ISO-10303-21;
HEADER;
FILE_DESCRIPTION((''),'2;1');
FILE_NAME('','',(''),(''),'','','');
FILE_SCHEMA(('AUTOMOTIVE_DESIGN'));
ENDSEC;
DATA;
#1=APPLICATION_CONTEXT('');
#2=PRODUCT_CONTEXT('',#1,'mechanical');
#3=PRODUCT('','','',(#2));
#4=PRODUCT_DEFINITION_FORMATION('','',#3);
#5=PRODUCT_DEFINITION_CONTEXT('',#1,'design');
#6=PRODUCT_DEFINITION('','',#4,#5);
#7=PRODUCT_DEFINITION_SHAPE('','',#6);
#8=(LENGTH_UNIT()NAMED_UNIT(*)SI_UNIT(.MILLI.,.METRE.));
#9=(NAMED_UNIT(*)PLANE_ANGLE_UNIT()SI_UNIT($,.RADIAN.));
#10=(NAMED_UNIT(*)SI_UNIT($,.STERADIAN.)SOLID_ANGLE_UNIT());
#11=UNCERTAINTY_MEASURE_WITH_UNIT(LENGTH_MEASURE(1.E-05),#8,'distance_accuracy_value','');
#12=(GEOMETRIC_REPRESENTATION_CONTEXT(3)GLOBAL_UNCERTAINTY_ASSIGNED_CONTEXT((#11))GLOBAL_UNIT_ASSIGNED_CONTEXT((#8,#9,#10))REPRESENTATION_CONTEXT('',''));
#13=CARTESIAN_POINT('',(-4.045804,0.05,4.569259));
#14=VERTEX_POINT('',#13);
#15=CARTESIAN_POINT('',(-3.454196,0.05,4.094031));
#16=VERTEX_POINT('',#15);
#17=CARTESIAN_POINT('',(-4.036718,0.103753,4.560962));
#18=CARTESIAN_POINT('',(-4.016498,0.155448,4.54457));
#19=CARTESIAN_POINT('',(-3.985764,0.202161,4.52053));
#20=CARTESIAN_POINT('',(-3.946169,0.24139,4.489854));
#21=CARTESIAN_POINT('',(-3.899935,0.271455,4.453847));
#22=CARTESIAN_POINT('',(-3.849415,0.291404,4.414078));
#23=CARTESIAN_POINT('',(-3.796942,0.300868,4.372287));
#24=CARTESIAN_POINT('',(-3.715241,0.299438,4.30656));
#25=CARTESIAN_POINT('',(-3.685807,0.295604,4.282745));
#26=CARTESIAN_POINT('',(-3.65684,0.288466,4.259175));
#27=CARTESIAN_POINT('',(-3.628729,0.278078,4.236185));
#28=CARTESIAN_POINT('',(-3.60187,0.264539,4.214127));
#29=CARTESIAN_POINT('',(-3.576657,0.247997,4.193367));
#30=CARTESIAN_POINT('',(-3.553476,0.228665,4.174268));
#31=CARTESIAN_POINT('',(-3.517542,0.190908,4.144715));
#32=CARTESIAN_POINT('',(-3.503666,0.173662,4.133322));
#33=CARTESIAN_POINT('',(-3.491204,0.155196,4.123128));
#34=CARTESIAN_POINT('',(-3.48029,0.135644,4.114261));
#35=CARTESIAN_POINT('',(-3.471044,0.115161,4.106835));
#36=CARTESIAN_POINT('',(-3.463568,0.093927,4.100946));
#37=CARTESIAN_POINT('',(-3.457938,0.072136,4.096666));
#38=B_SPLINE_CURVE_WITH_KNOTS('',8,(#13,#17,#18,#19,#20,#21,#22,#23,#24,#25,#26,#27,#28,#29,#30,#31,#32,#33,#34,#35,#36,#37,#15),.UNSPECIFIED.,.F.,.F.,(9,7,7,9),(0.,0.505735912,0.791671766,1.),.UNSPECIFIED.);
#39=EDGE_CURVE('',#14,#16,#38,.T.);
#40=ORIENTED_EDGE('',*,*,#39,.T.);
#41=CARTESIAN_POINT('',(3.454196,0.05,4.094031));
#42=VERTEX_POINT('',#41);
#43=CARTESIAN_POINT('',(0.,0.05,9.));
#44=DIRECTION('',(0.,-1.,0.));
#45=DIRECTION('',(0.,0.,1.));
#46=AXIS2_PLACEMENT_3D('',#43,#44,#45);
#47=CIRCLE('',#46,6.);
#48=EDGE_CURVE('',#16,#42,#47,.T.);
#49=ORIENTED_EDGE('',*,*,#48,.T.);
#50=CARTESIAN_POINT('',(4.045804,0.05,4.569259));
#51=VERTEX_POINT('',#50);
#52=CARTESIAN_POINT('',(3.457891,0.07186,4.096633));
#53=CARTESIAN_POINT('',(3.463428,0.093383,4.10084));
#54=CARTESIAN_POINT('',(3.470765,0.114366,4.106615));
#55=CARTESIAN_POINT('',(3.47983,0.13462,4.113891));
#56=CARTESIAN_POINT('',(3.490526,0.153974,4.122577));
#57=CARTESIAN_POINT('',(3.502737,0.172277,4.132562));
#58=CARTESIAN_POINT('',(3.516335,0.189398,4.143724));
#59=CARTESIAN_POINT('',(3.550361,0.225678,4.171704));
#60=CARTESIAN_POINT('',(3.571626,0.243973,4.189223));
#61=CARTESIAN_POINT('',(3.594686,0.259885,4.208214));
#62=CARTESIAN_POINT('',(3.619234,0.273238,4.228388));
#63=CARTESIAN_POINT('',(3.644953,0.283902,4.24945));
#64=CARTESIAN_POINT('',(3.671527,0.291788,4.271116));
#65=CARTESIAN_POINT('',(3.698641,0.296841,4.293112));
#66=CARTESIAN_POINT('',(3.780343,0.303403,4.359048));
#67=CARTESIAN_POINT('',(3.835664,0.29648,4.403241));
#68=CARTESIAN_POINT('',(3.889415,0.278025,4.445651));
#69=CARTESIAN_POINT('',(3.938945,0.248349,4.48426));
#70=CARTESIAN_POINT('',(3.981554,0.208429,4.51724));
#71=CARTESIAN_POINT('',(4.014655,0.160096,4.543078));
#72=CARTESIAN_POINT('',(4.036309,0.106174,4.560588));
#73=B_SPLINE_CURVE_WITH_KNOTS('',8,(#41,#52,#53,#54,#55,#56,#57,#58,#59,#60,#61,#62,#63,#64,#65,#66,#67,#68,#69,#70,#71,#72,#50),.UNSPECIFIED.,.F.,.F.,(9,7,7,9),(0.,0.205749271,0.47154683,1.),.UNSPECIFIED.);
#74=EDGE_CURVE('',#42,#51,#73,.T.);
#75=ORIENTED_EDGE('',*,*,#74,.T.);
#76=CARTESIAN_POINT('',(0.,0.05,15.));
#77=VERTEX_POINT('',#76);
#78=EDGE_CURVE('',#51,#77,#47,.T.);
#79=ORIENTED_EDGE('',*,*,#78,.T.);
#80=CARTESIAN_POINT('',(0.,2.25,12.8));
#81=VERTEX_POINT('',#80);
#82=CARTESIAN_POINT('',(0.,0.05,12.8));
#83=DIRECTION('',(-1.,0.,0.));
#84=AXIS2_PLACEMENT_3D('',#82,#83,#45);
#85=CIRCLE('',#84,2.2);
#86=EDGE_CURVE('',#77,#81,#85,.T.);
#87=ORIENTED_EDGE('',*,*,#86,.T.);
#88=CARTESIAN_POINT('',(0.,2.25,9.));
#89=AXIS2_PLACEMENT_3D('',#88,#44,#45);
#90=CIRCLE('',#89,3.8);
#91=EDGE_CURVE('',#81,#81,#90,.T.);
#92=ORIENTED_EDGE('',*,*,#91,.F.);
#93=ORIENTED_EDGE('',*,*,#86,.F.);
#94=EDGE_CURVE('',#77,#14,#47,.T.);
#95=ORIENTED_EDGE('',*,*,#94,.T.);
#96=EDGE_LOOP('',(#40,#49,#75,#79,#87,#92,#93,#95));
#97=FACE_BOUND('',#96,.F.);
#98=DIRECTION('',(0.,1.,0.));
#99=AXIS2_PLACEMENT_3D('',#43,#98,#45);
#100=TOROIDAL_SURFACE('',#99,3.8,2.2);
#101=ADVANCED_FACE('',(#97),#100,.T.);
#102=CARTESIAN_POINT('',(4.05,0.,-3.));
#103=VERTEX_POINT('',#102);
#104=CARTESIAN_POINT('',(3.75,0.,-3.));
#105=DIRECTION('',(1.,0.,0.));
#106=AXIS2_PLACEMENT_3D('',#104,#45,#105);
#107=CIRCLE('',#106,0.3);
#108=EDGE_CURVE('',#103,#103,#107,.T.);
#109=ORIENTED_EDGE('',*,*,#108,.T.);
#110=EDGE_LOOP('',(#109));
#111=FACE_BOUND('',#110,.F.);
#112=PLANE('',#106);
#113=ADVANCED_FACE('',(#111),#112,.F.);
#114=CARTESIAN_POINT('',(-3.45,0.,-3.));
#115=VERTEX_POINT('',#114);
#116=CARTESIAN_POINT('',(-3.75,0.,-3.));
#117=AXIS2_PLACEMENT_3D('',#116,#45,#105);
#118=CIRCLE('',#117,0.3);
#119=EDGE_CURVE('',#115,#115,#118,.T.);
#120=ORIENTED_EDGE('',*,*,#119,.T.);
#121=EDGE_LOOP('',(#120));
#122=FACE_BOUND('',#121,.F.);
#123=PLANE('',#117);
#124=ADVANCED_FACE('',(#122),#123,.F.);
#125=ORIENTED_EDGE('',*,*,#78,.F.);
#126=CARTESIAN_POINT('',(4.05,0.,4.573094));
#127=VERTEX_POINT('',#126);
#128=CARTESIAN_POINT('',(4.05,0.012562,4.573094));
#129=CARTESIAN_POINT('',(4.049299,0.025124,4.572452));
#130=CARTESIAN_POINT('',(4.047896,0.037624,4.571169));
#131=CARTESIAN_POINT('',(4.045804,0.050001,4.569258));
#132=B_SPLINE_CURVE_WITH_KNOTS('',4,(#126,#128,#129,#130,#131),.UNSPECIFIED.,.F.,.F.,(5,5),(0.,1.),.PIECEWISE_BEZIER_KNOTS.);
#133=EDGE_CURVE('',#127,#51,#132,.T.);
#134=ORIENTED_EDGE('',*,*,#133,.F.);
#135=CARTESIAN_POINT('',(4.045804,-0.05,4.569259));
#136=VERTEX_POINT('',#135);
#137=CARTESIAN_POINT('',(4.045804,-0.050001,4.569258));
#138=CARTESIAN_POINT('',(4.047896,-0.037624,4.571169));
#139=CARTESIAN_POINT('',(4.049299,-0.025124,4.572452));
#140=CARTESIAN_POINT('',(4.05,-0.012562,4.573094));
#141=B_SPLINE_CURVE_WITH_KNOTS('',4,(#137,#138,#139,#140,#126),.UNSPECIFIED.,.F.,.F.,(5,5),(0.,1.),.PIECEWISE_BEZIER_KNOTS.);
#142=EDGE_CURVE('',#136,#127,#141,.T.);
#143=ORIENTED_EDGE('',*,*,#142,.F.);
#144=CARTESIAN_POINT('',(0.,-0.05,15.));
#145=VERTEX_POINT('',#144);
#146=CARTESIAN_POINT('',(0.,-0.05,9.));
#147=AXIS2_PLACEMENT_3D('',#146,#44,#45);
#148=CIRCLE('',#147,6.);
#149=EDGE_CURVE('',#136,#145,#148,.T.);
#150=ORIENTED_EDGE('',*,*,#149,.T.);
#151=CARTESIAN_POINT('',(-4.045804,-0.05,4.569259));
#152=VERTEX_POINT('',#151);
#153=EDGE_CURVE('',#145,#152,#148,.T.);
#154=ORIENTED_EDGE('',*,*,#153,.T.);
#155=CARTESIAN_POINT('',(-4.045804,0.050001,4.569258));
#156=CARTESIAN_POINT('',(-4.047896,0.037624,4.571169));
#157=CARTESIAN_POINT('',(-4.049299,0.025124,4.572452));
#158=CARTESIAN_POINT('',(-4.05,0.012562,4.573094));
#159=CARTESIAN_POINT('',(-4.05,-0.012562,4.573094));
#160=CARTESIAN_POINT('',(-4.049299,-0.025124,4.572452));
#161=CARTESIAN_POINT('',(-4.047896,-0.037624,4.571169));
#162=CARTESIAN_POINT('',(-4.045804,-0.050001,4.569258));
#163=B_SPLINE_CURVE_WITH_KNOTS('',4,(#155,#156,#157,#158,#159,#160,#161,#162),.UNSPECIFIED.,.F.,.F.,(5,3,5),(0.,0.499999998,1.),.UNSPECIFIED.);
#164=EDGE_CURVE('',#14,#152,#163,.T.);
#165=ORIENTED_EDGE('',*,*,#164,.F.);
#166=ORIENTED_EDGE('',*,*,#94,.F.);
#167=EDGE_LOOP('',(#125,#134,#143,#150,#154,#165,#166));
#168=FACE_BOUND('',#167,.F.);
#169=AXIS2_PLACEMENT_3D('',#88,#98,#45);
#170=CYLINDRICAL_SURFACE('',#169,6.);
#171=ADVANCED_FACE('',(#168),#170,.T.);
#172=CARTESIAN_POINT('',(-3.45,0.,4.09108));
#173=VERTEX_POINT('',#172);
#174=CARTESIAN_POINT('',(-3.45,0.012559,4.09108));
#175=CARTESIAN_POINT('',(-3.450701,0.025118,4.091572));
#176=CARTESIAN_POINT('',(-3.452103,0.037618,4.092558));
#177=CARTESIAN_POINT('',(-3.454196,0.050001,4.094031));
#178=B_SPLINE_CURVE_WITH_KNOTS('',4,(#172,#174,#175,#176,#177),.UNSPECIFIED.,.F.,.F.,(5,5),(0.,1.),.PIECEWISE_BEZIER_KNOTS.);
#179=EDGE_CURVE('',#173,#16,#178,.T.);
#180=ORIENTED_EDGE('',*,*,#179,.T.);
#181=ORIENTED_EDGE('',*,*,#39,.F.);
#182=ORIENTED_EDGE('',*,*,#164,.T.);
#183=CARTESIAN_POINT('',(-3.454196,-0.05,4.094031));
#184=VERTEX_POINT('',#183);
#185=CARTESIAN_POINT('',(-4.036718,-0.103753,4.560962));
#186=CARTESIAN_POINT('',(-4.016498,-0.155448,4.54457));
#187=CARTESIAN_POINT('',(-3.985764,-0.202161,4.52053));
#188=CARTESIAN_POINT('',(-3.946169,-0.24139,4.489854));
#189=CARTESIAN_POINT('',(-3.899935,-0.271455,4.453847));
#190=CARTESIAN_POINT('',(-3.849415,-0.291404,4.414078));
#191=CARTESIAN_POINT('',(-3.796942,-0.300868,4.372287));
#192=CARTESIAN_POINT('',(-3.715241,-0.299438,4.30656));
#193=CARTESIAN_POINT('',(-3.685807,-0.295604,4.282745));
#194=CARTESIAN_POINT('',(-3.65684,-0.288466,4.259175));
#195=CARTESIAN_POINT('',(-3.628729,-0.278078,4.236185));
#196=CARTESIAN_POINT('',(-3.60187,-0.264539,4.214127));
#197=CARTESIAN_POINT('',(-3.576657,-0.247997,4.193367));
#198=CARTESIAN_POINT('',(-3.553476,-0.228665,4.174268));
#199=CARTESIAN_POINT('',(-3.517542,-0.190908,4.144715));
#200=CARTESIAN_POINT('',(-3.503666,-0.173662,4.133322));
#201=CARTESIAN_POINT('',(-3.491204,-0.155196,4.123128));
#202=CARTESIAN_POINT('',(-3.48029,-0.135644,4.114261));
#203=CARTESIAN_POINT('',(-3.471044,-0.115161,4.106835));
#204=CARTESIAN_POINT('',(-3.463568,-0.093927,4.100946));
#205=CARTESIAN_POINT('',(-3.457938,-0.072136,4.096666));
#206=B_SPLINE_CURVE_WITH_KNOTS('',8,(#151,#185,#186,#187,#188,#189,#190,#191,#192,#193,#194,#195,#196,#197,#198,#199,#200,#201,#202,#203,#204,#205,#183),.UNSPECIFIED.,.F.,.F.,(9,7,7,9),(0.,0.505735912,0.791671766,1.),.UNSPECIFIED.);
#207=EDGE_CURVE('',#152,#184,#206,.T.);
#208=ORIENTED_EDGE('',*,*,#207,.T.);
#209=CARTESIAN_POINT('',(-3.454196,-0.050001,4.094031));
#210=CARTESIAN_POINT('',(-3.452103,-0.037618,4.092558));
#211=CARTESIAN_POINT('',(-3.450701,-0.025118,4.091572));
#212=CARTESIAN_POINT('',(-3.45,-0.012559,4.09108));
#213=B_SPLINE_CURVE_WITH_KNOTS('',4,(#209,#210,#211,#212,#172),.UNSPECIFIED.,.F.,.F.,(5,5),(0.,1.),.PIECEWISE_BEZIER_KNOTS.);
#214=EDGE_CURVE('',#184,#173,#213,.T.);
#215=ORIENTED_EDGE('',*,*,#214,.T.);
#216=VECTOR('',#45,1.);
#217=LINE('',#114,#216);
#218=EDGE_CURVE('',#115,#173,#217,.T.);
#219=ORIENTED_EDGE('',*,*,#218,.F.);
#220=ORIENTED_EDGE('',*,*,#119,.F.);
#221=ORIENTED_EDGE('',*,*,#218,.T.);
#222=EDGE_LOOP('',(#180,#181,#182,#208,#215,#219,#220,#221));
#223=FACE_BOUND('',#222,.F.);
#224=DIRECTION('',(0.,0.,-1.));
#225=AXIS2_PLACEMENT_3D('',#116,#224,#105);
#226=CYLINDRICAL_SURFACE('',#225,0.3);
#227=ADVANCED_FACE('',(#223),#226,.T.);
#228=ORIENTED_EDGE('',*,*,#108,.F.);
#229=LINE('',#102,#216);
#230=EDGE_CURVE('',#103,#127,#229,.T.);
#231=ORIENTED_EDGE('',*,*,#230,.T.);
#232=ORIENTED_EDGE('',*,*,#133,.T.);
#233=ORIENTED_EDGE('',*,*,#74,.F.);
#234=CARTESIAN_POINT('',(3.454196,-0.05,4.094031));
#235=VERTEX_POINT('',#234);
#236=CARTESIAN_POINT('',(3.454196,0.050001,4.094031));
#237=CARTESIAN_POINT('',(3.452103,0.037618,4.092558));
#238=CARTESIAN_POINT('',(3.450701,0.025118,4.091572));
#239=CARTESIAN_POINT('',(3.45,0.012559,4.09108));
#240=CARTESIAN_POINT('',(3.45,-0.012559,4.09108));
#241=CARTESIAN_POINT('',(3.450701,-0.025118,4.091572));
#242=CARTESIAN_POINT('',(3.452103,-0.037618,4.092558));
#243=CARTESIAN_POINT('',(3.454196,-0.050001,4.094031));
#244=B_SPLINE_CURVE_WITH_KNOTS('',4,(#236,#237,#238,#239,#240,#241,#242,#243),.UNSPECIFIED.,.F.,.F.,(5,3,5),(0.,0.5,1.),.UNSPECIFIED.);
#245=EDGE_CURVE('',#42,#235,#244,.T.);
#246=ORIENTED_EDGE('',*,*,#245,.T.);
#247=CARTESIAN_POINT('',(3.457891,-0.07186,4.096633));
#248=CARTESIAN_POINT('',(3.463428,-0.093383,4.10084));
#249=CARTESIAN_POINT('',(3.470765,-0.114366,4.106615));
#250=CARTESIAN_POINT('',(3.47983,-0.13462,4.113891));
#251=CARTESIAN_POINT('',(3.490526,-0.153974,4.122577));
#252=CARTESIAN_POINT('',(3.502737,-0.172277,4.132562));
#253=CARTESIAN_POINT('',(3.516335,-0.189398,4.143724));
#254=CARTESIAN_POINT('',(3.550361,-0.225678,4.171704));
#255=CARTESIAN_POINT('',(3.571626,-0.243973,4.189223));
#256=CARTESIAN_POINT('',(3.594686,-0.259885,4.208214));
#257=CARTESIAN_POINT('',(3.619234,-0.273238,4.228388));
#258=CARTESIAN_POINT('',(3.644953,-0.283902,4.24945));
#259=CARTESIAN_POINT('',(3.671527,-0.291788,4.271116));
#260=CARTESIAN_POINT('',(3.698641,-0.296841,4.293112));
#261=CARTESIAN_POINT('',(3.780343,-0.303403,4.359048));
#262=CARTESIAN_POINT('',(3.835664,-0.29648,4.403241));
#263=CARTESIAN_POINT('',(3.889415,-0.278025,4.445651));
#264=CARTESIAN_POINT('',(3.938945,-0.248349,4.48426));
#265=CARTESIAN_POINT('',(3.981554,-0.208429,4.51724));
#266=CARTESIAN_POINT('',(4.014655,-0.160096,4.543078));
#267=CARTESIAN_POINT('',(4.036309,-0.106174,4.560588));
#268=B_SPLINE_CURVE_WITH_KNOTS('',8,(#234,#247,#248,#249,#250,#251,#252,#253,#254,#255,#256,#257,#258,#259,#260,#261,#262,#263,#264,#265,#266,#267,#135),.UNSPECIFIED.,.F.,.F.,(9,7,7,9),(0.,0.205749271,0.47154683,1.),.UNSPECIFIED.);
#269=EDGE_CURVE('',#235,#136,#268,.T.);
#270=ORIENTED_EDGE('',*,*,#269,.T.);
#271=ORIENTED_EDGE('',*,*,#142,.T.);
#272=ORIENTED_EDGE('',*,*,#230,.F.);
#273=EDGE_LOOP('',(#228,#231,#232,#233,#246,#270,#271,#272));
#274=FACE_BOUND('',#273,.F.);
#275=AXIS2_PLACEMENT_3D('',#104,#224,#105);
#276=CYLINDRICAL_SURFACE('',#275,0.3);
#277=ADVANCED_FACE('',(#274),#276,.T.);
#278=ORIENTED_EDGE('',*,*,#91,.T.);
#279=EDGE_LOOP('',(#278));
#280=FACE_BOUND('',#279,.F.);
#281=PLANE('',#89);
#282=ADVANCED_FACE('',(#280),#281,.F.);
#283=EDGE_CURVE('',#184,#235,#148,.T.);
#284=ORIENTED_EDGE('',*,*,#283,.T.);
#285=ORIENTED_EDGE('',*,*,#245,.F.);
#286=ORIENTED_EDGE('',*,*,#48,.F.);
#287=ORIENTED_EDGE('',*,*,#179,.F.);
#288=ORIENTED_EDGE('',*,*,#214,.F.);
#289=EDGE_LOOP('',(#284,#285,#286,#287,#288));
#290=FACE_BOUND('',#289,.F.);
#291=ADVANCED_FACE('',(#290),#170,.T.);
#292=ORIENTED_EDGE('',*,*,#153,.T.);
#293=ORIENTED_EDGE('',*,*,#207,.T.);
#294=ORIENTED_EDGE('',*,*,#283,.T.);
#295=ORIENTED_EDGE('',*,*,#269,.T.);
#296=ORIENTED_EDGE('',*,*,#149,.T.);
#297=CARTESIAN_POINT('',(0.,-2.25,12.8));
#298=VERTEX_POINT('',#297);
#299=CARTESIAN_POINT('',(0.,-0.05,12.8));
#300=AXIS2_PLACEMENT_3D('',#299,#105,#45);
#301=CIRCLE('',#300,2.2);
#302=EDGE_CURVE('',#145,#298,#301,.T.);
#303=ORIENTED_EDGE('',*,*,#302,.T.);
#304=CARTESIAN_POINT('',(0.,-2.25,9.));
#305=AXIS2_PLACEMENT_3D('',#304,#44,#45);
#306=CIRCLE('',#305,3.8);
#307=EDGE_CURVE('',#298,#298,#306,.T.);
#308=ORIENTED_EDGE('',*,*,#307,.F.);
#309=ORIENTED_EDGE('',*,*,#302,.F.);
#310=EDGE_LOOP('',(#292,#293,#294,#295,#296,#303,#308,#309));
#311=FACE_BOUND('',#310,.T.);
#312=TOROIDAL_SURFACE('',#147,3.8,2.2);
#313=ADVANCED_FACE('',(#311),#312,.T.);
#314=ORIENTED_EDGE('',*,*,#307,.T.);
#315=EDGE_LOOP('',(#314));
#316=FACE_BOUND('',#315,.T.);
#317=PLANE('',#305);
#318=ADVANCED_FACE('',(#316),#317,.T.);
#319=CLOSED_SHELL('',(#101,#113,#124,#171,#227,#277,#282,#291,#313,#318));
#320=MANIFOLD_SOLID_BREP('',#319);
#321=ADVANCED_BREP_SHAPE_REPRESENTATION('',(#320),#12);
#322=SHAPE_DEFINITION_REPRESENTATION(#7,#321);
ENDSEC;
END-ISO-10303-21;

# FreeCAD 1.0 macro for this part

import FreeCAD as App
import Part
import Sketcher


def edges_at(feature, points):
    """Names of the edges that pass closest to the given points."""
    edges = feature.Shape.Edges
    near = lambda p: min(range(len(edges)), key=lambda i: edges[i].distToShape(Part.Vertex(*p))[0])
    return sorted({f"Edge{near(p) + 1}" for p in points})

doc = App.newDocument("Part")
body = doc.addObject("PartDesign::Body", "Body")

# Sketch on XY plane
sketch1 = body.newObject("Sketcher::SketchObject", "Sketch")
sketch1.AttachmentSupport = (doc.getObject("XY_Plane"), [""])
sketch1.MapMode = "FlatFace"
sketch1.AttachmentOffset = App.Placement(App.Vector(0, 0, -3), App.Rotation())
sketch1.addGeometry(Part.Circle(App.Vector(-3.75, 0, 0), App.Vector(0, 0, 1), 0.3), False)
sketch1.addConstraint(Sketcher.Constraint("PointOnObject", 0, 3, -1))
sketch1.addConstraint(Sketcher.Constraint("Diameter", 0, 0.6))
sketch1.addConstraint(Sketcher.Constraint("DistanceX", 0, 3, -1, 1, 3.75))
pad1 = body.newObject("PartDesign::Pad", "Pad")
pad1.Profile = sketch1
pad1.Length = 10
body2 = doc.addObject("PartDesign::Body", "Body001")

# Sketch on XY plane
sketch2 = body2.newObject("Sketcher::SketchObject", "Sketch001")
sketch2.AttachmentSupport = (doc.getObject("XY_Plane001"), [""])
sketch2.MapMode = "FlatFace"
sketch2.AttachmentOffset = App.Placement(App.Vector(0, 0, -3), App.Rotation())
sketch2.addGeometry(Part.Circle(App.Vector(3.75, 0, 0), App.Vector(0, 0, 1), 0.3), False)
sketch2.addConstraint(Sketcher.Constraint("PointOnObject", 0, 3, -1))
sketch2.addConstraint(Sketcher.Constraint("Diameter", 0, 0.6))
sketch2.addConstraint(Sketcher.Constraint("DistanceX", -1, 1, 0, 3, 3.75))
pad2 = body2.newObject("PartDesign::Pad", "Pad001")
pad2.Profile = sketch2
pad2.Length = 10
body3 = doc.addObject("PartDesign::Body", "Body002")

# Sketch on XY plane
sketch3 = body3.newObject("Sketcher::SketchObject", "Sketch002")
sketch3.AttachmentSupport = (doc.getObject("XY_Plane002"), [""])
sketch3.MapMode = "FlatFace"
sketch3.addGeometry(Part.Circle(App.Vector(0, 0, 0), App.Vector(0, 0, 1), 6), False)
sketch3.addConstraint(Sketcher.Constraint("Coincident", 0, 3, -1, 1))
sketch3.addConstraint(Sketcher.Constraint("Diameter", 0, 12.0))
pad3 = body3.newObject("PartDesign::Pad", "Pad002")
pad3.Profile = sketch3
pad3.Length = 4.5
doc.recompute()

fillet = body3.newObject("PartDesign::Fillet", "Fillet")
fillet.Base = (pad3, edges_at(pad3, [(-6, 0, 4.5), (-6, 0, 0)]))
fillet.Radius = 2.2
body4 = doc.addObject("PartDesign::Body", "Body003")
doc.recompute()

body3.Placement = App.Placement(App.Vector(0, 0, 0), App.Rotation(App.Vector(0, 1, 0), 270))
boolean = body4.newObject("PartDesign::Boolean", "Boolean")
boolean.Type = "Fuse"
boolean.addObjects([body3])
body5 = doc.addObject("PartDesign::Body", "Body004")
doc.recompute()

body4.Placement = App.Placement(App.Vector(0, 2.25, 9), App.Rotation(App.Vector(0, 0, 1), 90))
boolean2 = body5.newObject("PartDesign::Boolean", "Boolean001")
boolean2.Type = "Fuse"
boolean2.addObjects([body4])
doc.recompute()

boolean3 = body5.newObject("PartDesign::Boolean", "Boolean002")
boolean3.Type = "Fuse"
boolean3.addObjects([body])
doc.recompute()

boolean4 = body5.newObject("PartDesign::Boolean", "Boolean003")
boolean4.Type = "Fuse"
boolean4.addObjects([body2])

doc.recompute()
